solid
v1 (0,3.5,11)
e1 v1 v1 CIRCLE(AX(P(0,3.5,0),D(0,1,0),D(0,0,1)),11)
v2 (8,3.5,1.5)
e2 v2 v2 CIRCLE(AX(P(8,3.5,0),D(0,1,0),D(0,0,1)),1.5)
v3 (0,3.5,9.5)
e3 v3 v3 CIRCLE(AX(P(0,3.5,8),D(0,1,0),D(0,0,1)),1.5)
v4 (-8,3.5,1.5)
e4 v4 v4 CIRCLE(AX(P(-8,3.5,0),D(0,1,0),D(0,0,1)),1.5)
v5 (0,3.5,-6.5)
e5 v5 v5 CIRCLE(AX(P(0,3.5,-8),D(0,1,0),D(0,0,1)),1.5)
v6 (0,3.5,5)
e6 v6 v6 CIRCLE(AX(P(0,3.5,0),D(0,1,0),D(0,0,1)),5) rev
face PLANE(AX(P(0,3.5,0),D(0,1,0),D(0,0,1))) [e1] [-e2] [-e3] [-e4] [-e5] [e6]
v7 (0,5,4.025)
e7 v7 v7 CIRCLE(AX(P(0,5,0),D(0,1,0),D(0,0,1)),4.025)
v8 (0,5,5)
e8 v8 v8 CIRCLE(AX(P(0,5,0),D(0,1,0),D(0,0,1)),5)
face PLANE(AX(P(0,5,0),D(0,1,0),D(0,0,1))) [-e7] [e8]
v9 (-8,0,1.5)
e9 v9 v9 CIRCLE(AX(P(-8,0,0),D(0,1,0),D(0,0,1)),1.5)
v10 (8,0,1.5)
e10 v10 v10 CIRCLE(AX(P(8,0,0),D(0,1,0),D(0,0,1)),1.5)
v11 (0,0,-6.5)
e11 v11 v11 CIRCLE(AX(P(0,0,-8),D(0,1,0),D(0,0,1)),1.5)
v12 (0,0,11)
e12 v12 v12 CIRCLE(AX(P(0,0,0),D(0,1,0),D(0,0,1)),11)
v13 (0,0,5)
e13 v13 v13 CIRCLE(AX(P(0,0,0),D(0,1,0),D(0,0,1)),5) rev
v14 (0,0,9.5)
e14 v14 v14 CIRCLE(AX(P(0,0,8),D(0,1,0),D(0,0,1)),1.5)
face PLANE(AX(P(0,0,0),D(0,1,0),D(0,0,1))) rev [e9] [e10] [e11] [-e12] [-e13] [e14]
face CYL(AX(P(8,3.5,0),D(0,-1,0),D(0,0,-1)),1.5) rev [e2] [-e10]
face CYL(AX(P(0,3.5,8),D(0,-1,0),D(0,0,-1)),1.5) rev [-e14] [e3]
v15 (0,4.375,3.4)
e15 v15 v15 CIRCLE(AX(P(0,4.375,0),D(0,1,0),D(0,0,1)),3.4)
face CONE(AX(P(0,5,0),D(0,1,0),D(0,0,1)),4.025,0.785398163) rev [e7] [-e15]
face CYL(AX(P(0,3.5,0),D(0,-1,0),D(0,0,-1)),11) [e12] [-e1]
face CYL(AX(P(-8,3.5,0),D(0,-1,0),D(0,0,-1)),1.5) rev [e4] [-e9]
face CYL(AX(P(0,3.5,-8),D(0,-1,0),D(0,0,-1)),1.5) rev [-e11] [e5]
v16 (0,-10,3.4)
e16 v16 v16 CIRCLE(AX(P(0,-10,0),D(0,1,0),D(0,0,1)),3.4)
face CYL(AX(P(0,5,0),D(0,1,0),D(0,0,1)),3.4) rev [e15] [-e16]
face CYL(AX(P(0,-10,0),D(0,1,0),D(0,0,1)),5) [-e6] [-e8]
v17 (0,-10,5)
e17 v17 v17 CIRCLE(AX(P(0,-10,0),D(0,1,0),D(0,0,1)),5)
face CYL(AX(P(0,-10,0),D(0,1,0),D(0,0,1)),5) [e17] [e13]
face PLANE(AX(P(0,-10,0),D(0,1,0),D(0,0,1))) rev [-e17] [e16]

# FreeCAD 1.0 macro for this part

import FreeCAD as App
import Part
import Sketcher
from FreeCAD import Vector
Q = App.Units.Quantity

doc = App.newDocument("Part")
body = doc.addObject("PartDesign::Body", "Body")

# Sketch on XZ plane
sketch1 = doc.addObject("Sketcher::SketchObject", "Sketch")
body.addObject(sketch1)
sketch1.AttachmentSupport = (doc.XZ_Plane, [""])
sketch1.MapMode = "FlatFace"
sketch1.addGeometry(Part.Circle(Vector(0, 0, 0), Vector(0, 0, 1), 5), False)
sketch1.addConstraint(Sketcher.Constraint("Coincident", 0, 3, -1, 1))
sketch1.addConstraint(Sketcher.Constraint("Diameter", 0, Q("10 mm")))
pad1 = doc.addObject("PartDesign::Pad", "Pad")
body.addObject(pad1)
pad1.Profile = sketch1
pad1.Type = "TwoLengths"
pad1.Length = 5
pad1.Length2 = 10
pad1.Reversed = True

# Sketch on XZ plane
sketch2 = doc.addObject("Sketcher::SketchObject", "Sketch001")
body.addObject(sketch2)
sketch2.AttachmentSupport = (doc.XZ_Plane, [""])
sketch2.MapMode = "FlatFace"
sketch2.addGeometry(Part.Circle(Vector(0, 0, 0), Vector(0, 0, 1), 11), False)
sketch2.addGeometry(Part.Circle(Vector(0, -8, 0), Vector(0, 0, 1), 1.5), False)
sketch2.addGeometry(Part.Circle(Vector(-8, 0, 0), Vector(0, 0, 1), 1.5), False)
sketch2.addGeometry(Part.Circle(Vector(8, 0, 0), Vector(0, 0, 1), 1.5), False)
sketch2.addGeometry(Part.Circle(Vector(0, 8, 0), Vector(0, 0, 1), 1.5), False)
sketch2.addConstraint(Sketcher.Constraint("Coincident", 0, 3, -1, 1))
sketch2.addConstraint(Sketcher.Constraint("Equal", 1, 2))
sketch2.addConstraint(Sketcher.Constraint("Equal", 2, 3))
sketch2.addConstraint(Sketcher.Constraint("Equal", 3, 4))
sketch2.addConstraint(Sketcher.Constraint("Symmetric", 2, 3, 3, 3, -1, 1))
sketch2.addConstraint(Sketcher.Constraint("Symmetric", 1, 3, 4, 3, -1, 1))
sketch2.addConstraint(Sketcher.Constraint("PointOnObject", 1, 3, -2))
sketch2.addConstraint(Sketcher.Constraint("PointOnObject", 2, 3, -1))
sketch2.addConstraint(Sketcher.Constraint("Diameter", 0, Q("22 mm")))
sketch2.addConstraint(Sketcher.Constraint("Diameter", 1, Q("3 mm")))
sketch2.addConstraint(Sketcher.Constraint("DistanceY", 1, 3, -1, 1, Q("8 mm")))
sketch2.addConstraint(Sketcher.Constraint("DistanceX", 2, 3, -1, 1, Q("8 mm")))
pad2 = doc.addObject("PartDesign::Pad", "Pad001")
body.addObject(pad2)
pad2.Profile = sketch2
pad2.Length = 3.5
pad2.Reversed = True

# Sketch on XZ plane
sketch3 = doc.addObject("Sketcher::SketchObject", "Sketch002")
body.addObject(sketch3)
sketch3.AttachmentSupport = (doc.XZ_Plane, [""])
sketch3.MapMode = "FlatFace"
sketch3.AttachmentOffset = App.Placement(Vector(0, 0, -5), App.Rotation())
sketch3.addGeometry(Part.Circle(Vector(0, 0, 0), Vector(0, 0, 1), 3.4), False)
sketch3.addConstraint(Sketcher.Constraint("Coincident", 0, 3, -1, 1))
sketch3.addConstraint(Sketcher.Constraint("Diameter", 0, Q("6.8 mm")))
doc.recompute()
hole = doc.addObject("PartDesign::Hole", "Hole")
body.addObject(hole)
hole.Profile = sketch3
hole.ThreadType = "None"
hole.Diameter = 6.8
hole.DepthType = "Dimension"
hole.Depth = 22.25
hole.DrillPoint = "Angled"
hole.DrillPointAngle = 118
hole.HoleCutType = "Countersink"
hole.HoleCutDiameter = 8.05
hole.HoleCutCountersinkAngle = 90
hole.Reversed = True

doc.recompute()
